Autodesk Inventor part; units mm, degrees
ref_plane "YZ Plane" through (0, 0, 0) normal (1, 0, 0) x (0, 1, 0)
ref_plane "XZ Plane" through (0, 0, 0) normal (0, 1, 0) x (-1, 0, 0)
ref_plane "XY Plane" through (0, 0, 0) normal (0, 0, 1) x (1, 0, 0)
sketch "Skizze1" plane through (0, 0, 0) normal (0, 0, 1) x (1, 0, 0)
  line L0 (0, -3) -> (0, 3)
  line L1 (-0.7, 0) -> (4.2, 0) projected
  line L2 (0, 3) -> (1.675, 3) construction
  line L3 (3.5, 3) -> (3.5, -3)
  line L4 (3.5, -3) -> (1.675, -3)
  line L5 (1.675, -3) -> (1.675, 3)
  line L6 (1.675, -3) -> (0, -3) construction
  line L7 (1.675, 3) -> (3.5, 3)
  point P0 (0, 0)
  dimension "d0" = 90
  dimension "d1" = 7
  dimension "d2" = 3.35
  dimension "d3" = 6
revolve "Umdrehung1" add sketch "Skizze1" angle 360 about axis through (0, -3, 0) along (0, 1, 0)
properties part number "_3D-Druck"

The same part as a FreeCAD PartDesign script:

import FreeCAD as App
import Part
import Sketcher

V = App.Vector
Q = App.Units.Quantity


def add_polygon(sketch, points):
    """Adds a closed chain of lines whose ends are joined by coincident constraints."""
    first, n = sketch.GeometryCount, len(points)
    for a, b in zip(points, points[1:] + points[:1]):
        sketch.addGeometry(Part.LineSegment(App.Vector(*a, 0), App.Vector(*b, 0)), False)
    for i in range(n):
        sketch.addConstraint(Sketcher.Constraint("Coincident", first + i, 2, first + (i + 1) % n, 1))

doc = App.newDocument("Part")
body = doc.addObject("PartDesign::Body", "Body")

# Sketch on XY plane
sketch1 = body.newObject("Sketcher::SketchObject", "Sketch")
sketch1.AttachmentSupport = (doc.getObject("XY_Plane"), [""])
sketch1.MapMode = "FlatFace"
add_polygon(sketch1, [(1.7, 3), (1.7, -3), (3.5, -3), (3.5, 3)])  # lines 0-3
sketch1.addConstraint([
    Sketcher.Constraint("Vertical", 0),
    Sketcher.Constraint("Horizontal", 1),
    Sketcher.Constraint("Vertical", 2),
    Sketcher.Constraint("Horizontal", 3),
    Sketcher.Constraint("DistanceY", 0, 2, 0, 1, Q("6 mm")),
    Sketcher.Constraint("DistanceY", 0, 2, -1, 1, Q("3 mm")),
    Sketcher.Constraint("DistanceX", -1, 1, 1, 2, Q("3.5 mm")),
    Sketcher.Constraint("DistanceX", 1, 1, 1, 2, Q("1.825 mm")),
])
revolution = body.newObject("PartDesign::Revolution", "Revolution")
revolution.Profile = sketch1
revolution.ReferenceAxis = (sketch1, ["V_Axis"])
revolution.Angle = 360

doc.recompute()
